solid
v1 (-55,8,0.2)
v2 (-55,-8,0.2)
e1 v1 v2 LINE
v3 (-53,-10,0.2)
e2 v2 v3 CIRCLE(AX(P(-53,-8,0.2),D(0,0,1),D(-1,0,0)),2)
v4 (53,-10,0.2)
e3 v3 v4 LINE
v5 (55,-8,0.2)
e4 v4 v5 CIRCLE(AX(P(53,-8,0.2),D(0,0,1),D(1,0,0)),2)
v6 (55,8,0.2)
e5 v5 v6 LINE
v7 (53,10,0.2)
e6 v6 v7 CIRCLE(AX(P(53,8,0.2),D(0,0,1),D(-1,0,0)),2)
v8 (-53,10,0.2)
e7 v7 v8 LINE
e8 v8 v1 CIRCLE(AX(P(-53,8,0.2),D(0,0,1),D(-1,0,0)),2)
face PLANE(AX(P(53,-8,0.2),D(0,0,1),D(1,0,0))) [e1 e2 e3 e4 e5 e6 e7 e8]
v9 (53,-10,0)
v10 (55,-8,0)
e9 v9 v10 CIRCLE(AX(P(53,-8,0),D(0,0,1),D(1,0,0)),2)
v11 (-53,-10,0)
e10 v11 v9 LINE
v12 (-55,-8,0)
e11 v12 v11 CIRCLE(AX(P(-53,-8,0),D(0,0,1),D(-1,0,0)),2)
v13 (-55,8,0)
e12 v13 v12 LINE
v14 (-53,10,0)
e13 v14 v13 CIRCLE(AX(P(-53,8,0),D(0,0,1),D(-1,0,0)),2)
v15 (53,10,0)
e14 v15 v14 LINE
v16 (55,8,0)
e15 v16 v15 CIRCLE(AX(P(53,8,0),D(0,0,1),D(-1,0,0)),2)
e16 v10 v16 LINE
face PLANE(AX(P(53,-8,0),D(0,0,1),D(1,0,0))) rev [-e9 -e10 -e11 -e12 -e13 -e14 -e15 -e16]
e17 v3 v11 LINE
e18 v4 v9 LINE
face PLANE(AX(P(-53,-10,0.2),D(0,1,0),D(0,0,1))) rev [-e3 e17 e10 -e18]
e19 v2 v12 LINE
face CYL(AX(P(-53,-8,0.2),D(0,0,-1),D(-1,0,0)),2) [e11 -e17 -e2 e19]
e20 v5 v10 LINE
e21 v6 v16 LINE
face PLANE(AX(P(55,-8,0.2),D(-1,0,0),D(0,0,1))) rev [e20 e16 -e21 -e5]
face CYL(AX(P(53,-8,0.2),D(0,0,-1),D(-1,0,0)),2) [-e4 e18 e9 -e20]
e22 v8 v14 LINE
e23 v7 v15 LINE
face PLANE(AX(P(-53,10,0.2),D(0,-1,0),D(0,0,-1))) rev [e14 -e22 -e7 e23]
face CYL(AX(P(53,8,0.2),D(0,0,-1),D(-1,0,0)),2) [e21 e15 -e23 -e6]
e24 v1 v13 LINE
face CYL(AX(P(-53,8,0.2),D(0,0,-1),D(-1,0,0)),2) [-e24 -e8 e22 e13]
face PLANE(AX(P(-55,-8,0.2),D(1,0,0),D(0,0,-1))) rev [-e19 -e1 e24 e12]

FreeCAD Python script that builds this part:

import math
import FreeCAD as App
import Part
import Sketcher

V = App.Vector

doc = App.newDocument("Part")
body = doc.addObject("PartDesign::Body", "Body")

sketch1 = body.newObject("Sketcher::SketchObject", "Sketch")
sketch1.AttachmentSupport = (doc.getObject("XY_Plane"), [""])
sketch1.MapMode = "FlatFace"
sketch1.addGeometry([
    Part.LineSegment(V(-53, -10, 0), V(53, -10, 0)),
    Part.ArcOfCircle(Part.Circle(V(53, -8, 0), V(0, 0, 1), 2), math.radians(-90), math.radians(0)),
    Part.LineSegment(V(55, -8, 0), V(55, 8, 0)),
    Part.ArcOfCircle(Part.Circle(V(53, 8, 0), V(0, 0, 1), 2), math.radians(0), math.radians(90)),
    Part.LineSegment(V(53, 10, 0), V(-53, 10, 0)),
    Part.ArcOfCircle(Part.Circle(V(-53, 8, 0), V(0, 0, 1), 2), math.radians(90), math.radians(180)),
    Part.LineSegment(V(-55, 8, 0), V(-55, -8, 0)),
    Part.ArcOfCircle(Part.Circle(V(-53, -8, 0), V(0, 0, 1), 2), math.radians(-180), math.radians(-90)),
], False)
sketch1.addConstraint([
    Sketcher.Constraint("Tangent", 0, 2, 1, 1),
    Sketcher.Constraint("Tangent", 1, 2, 2, 1),
    Sketcher.Constraint("Tangent", 2, 2, 3, 1),
    Sketcher.Constraint("Tangent", 3, 2, 4, 1),
    Sketcher.Constraint("Tangent", 4, 2, 5, 1),
    Sketcher.Constraint("Tangent", 5, 2, 6, 1),
    Sketcher.Constraint("Tangent", 6, 2, 7, 1),
    Sketcher.Constraint("Tangent", 7, 2, 0, 1),
    Sketcher.Constraint("Horizontal", 0),
    Sketcher.Constraint("Vertical", 2),
    Sketcher.Constraint("Horizontal", 4),
    Sketcher.Constraint("Vertical", 6),
    Sketcher.Constraint("Equal", 1, 3),
    Sketcher.Constraint("Equal", 3, 5),
    Sketcher.Constraint("Equal", 5, 7),
    Sketcher.Constraint("Symmetric", 1, 3, 5, 3, -1, 1),
    Sketcher.Constraint("Radius", 1, 2.0),
    Sketcher.Constraint("DistanceX", 0, 1, 0, 2, 106.0),
    Sketcher.Constraint("DistanceY", 2, 1, 2, 2, 16.0),
])
pad1 = body.newObject("PartDesign::Pad", "Pad")
pad1.Profile = sketch1
pad1.Length = 0.2

doc.recompute()
